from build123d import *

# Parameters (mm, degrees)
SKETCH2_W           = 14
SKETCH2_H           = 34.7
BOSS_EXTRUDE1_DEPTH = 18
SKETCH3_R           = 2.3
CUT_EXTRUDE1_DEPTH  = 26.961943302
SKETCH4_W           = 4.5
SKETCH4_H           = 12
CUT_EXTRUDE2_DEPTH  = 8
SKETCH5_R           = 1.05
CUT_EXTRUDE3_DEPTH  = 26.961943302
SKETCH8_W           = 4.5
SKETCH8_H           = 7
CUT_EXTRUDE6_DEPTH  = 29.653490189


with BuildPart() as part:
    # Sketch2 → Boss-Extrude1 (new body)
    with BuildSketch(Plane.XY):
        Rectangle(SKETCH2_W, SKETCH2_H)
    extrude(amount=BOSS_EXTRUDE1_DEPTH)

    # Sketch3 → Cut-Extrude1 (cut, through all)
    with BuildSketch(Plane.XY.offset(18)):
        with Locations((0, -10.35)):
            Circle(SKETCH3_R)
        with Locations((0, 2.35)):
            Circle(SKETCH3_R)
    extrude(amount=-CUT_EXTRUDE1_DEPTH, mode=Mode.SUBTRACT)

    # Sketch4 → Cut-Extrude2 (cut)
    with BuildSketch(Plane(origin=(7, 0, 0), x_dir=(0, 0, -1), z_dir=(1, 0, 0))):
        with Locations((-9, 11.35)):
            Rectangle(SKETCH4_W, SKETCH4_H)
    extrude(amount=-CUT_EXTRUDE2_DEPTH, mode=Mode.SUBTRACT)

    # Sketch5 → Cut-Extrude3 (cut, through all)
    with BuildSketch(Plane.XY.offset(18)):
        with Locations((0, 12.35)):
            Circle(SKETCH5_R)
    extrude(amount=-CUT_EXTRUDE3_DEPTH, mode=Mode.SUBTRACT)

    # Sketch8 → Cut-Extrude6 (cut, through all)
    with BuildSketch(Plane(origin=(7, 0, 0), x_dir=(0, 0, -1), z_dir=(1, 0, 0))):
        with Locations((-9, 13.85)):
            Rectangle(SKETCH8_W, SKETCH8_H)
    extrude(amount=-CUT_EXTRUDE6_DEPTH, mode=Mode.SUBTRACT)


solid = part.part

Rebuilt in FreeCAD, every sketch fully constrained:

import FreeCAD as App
import Part
import Sketcher
from FreeCAD import Vector
Q = App.Units.Quantity

doc = App.newDocument("Part")
body = doc.addObject("PartDesign::Body", "Body")

# Sketch on XY plane
sketch1 = body.newObject("Sketcher::SketchObject", "Sketch")
sketch1.AttachmentSupport = (doc.getObject("XY_Plane"), [""])
sketch1.MapMode = "FlatFace"
sketch1.addGeometry([
    Part.LineSegment(Vector(-7, 17.35, 0), Vector(-7, -17.35, 0)),
    Part.LineSegment(Vector(-7, -17.35, 0), Vector(7, -17.35, 0)),
    Part.LineSegment(Vector(7, -17.35, 0), Vector(7, 17.35, 0)),
    Part.LineSegment(Vector(7, 17.35, 0), Vector(-7, 17.35, 0)),
], False)
sketch1.addConstraint([
    Sketcher.Constraint("Coincident", 0, 2, 1, 1),
    Sketcher.Constraint("Coincident", 1, 2, 2, 1),
    Sketcher.Constraint("Coincident", 2, 2, 3, 1),
    Sketcher.Constraint("Coincident", 3, 2, 0, 1),
    Sketcher.Constraint("Vertical", 0),
    Sketcher.Constraint("Horizontal", 1),
    Sketcher.Constraint("Vertical", 2),
    Sketcher.Constraint("Horizontal", 3),
    Sketcher.Constraint("Symmetric", 0, 2, 2, 2, -1, 1),
    Sketcher.Constraint("DistanceX", 1, 1, 1, 2, Q("14 mm")),
    Sketcher.Constraint("DistanceY", 0, 2, 0, 1, Q("34.7 mm")),
])
pad1 = body.newObject("PartDesign::Pad", "Pad")
pad1.Profile = sketch1
pad1.Length = 18

# Sketch on XY plane
sketch2 = body.newObject("Sketcher::SketchObject", "Sketch001")
sketch2.AttachmentSupport = (doc.getObject("XY_Plane"), [""])
sketch2.MapMode = "FlatFace"
sketch2.AttachmentOffset = App.Placement(Vector(0, 0, 18), App.Rotation())
sketch2.addGeometry([
    Part.Circle(Vector(0, -10.35, 0), Vector(0, 0, 1), 2.3),
    Part.Circle(Vector(0, 2.35, 0), Vector(0, 0, 1), 2.3),
], False)
sketch2.addConstraint([
    Sketcher.Constraint("Equal", 0, 1),
    Sketcher.Constraint("PointOnObject", 0, 3, -2),
    Sketcher.Constraint("PointOnObject", 1, 3, -2),
    Sketcher.Constraint("Diameter", 0, Q("4.6 mm")),
    Sketcher.Constraint("DistanceY", 0, 3, 1, 3, Q("12.7 mm")),
    Sketcher.Constraint("DistanceY", 0, 3, -1, 1, Q("10.35 mm")),
])
pocket1 = body.newObject("PartDesign::Pocket", "Pocket")
pocket1.Profile = sketch2
pocket1.Type = "ThroughAll"

# Sketch on YZ plane
sketch3 = body.newObject("Sketcher::SketchObject", "Sketch002")
sketch3.AttachmentSupport = (doc.getObject("YZ_Plane"), [""])
sketch3.MapMode = "FlatFace"
sketch3.AttachmentOffset = App.Placement(Vector(0, 0, 7), App.Rotation())
sketch3.addGeometry([
    Part.LineSegment(Vector(17.35, 11.25, 0), Vector(5.35, 11.25, 0)),
    Part.LineSegment(Vector(5.35, 11.25, 0), Vector(5.35, 6.75, 0)),
    Part.LineSegment(Vector(5.35, 6.75, 0), Vector(17.35, 6.75, 0)),
    Part.LineSegment(Vector(17.35, 6.75, 0), Vector(17.35, 11.25, 0)),
], False)
sketch3.addConstraint([
    Sketcher.Constraint("Coincident", 0, 2, 1, 1),
    Sketcher.Constraint("Coincident", 1, 2, 2, 1),
    Sketcher.Constraint("Coincident", 2, 2, 3, 1),
    Sketcher.Constraint("Coincident", 3, 2, 0, 1),
    Sketcher.Constraint("Horizontal", 0),
    Sketcher.Constraint("Vertical", 1),
    Sketcher.Constraint("Horizontal", 2),
    Sketcher.Constraint("Vertical", 3),
    Sketcher.Constraint("DistanceX", 0, 2, 0, 1, Q("12 mm")),
    Sketcher.Constraint("DistanceY", 1, 2, 1, 1, Q("4.5 mm")),
    Sketcher.Constraint("DistanceX", -1, 1, 0, 2, Q("5.35 mm")),
    Sketcher.Constraint("DistanceY", -1, 1, 0, 2, Q("11.25 mm")),
])
pocket2 = body.newObject("PartDesign::Pocket", "Pocket001")
pocket2.Profile = sketch3
pocket2.Length = 8

# Sketch on XY plane
sketch4 = body.newObject("Sketcher::SketchObject", "Sketch003")
sketch4.AttachmentSupport = (doc.getObject("XY_Plane"), [""])
sketch4.MapMode = "FlatFace"
sketch4.AttachmentOffset = App.Placement(Vector(0, 0, 18), App.Rotation())
sketch4.addGeometry(Part.Circle(Vector(0, 12.35, 0), Vector(0, 0, 1), 1.05), False)
sketch4.addConstraint([
    Sketcher.Constraint("PointOnObject", 0, 3, -2),
    Sketcher.Constraint("Diameter", 0, Q("2.1 mm")),
    Sketcher.Constraint("DistanceY", -1, 1, 0, 3, Q("12.35 mm")),
])
pocket3 = body.newObject("PartDesign::Pocket", "Pocket002")
pocket3.Profile = sketch4
pocket3.Type = "ThroughAll"

# Sketch on YZ plane
sketch5 = body.newObject("Sketcher::SketchObject", "Sketch004")
sketch5.AttachmentSupport = (doc.getObject("YZ_Plane"), [""])
sketch5.MapMode = "FlatFace"
sketch5.AttachmentOffset = App.Placement(Vector(0, 0, 7), App.Rotation())
sketch5.addGeometry([
    Part.LineSegment(Vector(17.35, 11.25, 0), Vector(10.35, 11.25, 0)),
    Part.LineSegment(Vector(10.35, 11.25, 0), Vector(10.35, 6.75, 0)),
    Part.LineSegment(Vector(10.35, 6.75, 0), Vector(17.35, 6.75, 0)),
    Part.LineSegment(Vector(17.35, 6.75, 0), Vector(17.35, 11.25, 0)),
], False)
sketch5.addConstraint([
    Sketcher.Constraint("Coincident", 0, 2, 1, 1),
    Sketcher.Constraint("Coincident", 1, 2, 2, 1),
    Sketcher.Constraint("Coincident", 2, 2, 3, 1),
    Sketcher.Constraint("Coincident", 3, 2, 0, 1),
    Sketcher.Constraint("Horizontal", 0),
    Sketcher.Constraint("Vertical", 1),
    Sketcher.Constraint("Horizontal", 2),
    Sketcher.Constraint("Vertical", 3),
    Sketcher.Constraint("DistanceX", 0, 2, 0, 1, Q("7 mm")),
    Sketcher.Constraint("DistanceY", 1, 2, 1, 1, Q("4.5 mm")),
    Sketcher.Constraint("DistanceX", -1, 1, 0, 2, Q("10.35 mm")),
    Sketcher.Constraint("DistanceY", -1, 1, 0, 2, Q("11.25 mm")),
])
pocket4 = body.newObject("PartDesign::Pocket", "Pocket003")
pocket4.Profile = sketch5
pocket4.Type = "ThroughAll"

doc.recompute()
